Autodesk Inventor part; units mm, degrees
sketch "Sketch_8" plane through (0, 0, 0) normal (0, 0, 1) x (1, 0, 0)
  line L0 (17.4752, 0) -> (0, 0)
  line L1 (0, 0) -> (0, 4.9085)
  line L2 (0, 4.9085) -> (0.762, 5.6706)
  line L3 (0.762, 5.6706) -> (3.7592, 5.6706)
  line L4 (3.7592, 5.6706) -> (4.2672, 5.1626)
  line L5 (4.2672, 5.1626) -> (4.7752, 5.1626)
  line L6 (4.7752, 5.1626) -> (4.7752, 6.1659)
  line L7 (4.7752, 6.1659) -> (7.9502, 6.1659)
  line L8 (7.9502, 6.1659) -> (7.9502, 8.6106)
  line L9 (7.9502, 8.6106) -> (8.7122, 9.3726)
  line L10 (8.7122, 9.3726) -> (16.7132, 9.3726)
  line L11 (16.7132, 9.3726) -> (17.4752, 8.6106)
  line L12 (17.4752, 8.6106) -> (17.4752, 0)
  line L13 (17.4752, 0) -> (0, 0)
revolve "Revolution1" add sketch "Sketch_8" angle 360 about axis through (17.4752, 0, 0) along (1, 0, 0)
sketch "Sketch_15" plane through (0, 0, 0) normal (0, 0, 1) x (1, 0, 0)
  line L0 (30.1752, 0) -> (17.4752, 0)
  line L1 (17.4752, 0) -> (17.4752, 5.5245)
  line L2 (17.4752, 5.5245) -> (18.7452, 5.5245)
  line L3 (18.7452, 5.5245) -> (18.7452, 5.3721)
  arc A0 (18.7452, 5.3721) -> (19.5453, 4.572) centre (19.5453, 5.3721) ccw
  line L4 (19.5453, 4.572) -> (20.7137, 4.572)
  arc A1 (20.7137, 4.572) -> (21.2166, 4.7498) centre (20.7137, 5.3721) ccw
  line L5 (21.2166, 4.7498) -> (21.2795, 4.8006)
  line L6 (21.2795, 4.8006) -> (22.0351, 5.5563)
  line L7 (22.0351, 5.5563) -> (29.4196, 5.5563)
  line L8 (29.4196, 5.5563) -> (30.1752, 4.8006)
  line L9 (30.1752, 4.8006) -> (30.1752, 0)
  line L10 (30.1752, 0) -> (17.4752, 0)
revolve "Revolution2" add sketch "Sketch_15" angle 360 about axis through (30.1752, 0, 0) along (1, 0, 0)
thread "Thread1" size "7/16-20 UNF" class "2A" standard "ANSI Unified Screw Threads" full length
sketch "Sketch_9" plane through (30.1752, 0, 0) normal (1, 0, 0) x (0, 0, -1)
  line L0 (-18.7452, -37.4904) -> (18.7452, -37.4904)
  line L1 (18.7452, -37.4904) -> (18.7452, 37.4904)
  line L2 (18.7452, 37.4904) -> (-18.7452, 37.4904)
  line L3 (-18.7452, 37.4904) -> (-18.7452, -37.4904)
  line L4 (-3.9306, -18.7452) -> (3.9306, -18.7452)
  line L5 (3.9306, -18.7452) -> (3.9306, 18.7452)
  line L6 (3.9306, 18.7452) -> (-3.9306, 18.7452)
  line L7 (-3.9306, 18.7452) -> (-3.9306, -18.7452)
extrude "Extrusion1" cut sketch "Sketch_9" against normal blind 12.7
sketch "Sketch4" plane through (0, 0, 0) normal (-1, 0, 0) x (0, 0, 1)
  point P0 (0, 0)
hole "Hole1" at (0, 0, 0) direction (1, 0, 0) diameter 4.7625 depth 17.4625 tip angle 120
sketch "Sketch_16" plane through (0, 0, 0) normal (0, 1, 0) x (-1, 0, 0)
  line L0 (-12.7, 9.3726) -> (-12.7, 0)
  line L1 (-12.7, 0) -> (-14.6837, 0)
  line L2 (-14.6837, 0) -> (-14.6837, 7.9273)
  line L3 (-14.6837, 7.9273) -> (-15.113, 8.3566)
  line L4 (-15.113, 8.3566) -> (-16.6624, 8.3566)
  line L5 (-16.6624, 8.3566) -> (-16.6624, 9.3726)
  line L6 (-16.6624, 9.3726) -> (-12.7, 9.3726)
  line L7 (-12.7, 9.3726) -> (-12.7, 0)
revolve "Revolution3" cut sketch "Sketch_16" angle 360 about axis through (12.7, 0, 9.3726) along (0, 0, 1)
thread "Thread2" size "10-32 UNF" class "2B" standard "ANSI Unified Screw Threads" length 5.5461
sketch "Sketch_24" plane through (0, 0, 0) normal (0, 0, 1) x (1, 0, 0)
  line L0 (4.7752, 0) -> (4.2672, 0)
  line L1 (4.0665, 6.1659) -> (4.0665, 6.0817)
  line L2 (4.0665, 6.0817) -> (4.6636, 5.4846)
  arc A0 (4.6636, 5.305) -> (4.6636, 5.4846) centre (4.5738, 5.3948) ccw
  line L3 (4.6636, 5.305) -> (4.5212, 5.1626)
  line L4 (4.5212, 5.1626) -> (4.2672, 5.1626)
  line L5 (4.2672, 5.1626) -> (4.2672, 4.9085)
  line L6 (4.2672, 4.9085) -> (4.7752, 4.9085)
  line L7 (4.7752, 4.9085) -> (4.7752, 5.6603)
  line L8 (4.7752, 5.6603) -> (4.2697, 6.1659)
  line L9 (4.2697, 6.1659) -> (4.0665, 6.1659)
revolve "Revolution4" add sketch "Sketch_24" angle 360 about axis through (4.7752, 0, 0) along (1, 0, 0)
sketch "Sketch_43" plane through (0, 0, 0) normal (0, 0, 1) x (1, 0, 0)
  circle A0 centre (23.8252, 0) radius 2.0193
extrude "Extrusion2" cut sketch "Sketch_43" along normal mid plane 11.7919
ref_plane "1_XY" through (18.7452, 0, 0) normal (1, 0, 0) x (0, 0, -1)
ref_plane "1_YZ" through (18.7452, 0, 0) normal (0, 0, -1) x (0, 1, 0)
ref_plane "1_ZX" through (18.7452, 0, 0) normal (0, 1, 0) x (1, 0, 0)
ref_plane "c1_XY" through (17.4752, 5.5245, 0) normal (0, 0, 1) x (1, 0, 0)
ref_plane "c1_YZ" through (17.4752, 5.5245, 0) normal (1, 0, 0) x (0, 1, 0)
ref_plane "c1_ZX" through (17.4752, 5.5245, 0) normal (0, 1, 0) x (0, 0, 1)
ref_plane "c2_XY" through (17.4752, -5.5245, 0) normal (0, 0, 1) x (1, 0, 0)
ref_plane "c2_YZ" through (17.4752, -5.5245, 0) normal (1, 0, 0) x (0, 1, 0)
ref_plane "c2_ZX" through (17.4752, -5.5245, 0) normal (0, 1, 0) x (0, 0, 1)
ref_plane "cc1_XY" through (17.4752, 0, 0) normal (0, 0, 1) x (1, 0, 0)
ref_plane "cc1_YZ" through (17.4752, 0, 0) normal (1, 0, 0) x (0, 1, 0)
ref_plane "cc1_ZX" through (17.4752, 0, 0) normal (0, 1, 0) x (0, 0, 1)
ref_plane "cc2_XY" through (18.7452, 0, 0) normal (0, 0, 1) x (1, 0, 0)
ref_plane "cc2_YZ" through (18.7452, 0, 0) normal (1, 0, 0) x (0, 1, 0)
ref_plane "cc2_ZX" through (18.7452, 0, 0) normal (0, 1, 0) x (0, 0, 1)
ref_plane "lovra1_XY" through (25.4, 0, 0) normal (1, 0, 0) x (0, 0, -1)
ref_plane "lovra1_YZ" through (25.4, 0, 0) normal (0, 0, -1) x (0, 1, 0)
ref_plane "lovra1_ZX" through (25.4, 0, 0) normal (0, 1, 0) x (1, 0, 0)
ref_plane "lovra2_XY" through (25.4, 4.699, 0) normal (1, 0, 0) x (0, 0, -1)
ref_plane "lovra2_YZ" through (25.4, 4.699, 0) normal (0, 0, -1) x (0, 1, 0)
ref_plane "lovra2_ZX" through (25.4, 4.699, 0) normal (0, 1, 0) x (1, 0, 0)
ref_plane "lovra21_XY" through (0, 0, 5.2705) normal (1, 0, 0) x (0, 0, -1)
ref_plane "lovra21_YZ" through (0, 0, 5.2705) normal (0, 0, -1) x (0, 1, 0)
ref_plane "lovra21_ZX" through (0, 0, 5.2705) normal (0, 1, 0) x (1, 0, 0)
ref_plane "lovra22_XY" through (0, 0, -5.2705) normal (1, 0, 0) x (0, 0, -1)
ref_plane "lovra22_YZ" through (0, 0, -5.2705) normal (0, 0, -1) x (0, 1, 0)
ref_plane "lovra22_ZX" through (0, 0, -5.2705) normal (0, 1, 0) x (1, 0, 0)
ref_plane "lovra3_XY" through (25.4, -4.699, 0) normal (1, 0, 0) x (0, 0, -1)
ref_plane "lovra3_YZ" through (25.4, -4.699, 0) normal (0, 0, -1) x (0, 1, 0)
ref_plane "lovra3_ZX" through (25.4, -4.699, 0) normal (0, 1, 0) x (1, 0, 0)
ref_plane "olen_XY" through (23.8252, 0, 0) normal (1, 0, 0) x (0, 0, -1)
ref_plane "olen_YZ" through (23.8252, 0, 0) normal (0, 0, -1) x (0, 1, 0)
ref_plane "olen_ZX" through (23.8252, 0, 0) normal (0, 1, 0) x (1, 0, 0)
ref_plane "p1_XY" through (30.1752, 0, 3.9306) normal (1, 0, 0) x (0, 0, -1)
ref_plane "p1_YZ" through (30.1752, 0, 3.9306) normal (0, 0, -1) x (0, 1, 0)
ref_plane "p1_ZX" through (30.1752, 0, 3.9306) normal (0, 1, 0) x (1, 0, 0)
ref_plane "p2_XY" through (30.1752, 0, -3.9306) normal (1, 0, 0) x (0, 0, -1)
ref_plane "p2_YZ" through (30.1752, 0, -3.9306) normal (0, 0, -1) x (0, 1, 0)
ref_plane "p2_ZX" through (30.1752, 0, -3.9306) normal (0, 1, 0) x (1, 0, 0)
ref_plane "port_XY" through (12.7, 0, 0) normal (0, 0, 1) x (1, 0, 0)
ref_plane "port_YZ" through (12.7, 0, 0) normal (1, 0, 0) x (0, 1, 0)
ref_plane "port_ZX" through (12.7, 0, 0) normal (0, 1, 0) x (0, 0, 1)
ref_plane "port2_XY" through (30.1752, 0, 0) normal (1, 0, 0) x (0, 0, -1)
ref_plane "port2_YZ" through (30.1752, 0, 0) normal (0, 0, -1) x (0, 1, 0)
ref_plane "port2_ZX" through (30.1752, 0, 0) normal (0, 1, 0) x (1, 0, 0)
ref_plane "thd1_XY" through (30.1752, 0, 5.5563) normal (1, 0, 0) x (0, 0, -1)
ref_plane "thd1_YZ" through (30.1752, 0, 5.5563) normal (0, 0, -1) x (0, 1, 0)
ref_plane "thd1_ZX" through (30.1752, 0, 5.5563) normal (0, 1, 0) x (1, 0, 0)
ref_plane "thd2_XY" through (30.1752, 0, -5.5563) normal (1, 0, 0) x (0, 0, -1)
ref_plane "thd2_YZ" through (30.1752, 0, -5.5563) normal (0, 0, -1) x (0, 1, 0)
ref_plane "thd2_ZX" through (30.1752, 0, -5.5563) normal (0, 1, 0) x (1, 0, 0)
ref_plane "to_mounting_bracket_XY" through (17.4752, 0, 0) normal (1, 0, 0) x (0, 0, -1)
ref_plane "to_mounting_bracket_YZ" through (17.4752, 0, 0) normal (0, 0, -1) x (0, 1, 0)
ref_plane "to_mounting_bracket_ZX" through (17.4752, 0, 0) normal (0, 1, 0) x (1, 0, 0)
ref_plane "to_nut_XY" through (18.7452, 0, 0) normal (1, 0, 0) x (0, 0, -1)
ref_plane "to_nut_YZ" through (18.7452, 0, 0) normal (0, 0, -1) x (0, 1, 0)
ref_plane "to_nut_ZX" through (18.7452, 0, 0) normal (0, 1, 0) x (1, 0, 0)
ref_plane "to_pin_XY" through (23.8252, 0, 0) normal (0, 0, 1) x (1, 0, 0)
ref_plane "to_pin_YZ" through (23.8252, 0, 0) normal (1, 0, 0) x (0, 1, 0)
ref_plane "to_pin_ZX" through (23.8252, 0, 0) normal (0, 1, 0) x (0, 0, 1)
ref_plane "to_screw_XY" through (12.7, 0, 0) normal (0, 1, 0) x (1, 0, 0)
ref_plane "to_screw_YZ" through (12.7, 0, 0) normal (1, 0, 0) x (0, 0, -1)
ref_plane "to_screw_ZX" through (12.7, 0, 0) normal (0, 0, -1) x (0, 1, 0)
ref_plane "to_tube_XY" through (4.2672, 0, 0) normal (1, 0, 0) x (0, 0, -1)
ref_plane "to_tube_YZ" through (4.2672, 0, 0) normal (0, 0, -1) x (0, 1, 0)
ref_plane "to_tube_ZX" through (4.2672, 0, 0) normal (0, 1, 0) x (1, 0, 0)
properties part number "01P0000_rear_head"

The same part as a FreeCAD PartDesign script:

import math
import FreeCAD as App
import Part
import Sketcher
from FreeCAD import Vector
Q = App.Units.Quantity


def add_polygon(sketch, points):
    """Adds a closed chain of lines whose ends are joined by coincident constraints."""
    first, n = sketch.GeometryCount, len(points)
    for a, b in zip(points, points[1:] + points[:1]):
        sketch.addGeometry(Part.LineSegment(App.Vector(*a, 0), App.Vector(*b, 0)), False)
    for i in range(n):
        sketch.addConstraint(Sketcher.Constraint("Coincident", first + i, 2, first + (i + 1) % n, 1))

doc = App.newDocument("Part")
body = doc.addObject("PartDesign::Body", "Body")

# Sketch on XY plane
sketch1 = body.newObject("Sketcher::SketchObject", "Sketch")
sketch1.AttachmentSupport = (doc.getObject("XY_Plane"), [""])
sketch1.MapMode = "FlatFace"
add_polygon(sketch1, [(0, 0), (17.5, 0), (17.5, 8.6), (16.7, 9.4), (8.7, 9.4), (8, 8.6), (8, 6.2), (4.8, 6.2), (4.8, 5.2), (4.3, 5.2), (3.8, 5.7), (0.8, 5.7), (0, 4.9)])  # lines 0-12
sketch1.addConstraint(Sketcher.Constraint("Horizontal", 0))
sketch1.addConstraint(Sketcher.Constraint("Vertical", 1))
sketch1.addConstraint(Sketcher.Constraint("Horizontal", 3))
sketch1.addConstraint(Sketcher.Constraint("Vertical", 5))
sketch1.addConstraint(Sketcher.Constraint("Horizontal", 6))
sketch1.addConstraint(Sketcher.Constraint("Vertical", 7))
sketch1.addConstraint(Sketcher.Constraint("Horizontal", 8))
sketch1.addConstraint(Sketcher.Constraint("Horizontal", 10))
sketch1.addConstraint(Sketcher.Constraint("Vertical", 12))
sketch1.addConstraint(Sketcher.Constraint("Coincident", 12, 2, -1, 1))
sketch1.addConstraint(Sketcher.Constraint("Perpendicular", 2, 4))
sketch1.addConstraint(Sketcher.Constraint("Perpendicular", 4, 9))
sketch1.addConstraint(Sketcher.Constraint("Perpendicular", 9, 11))
sketch1.addConstraint(Sketcher.Constraint("Horizontal", 1, 2, 4, 2))
sketch1.addConstraint(Sketcher.Constraint("Equal", 2, 4))
sketch1.addConstraint(Sketcher.Constraint("Equal", 4, 11))
sketch1.addConstraint(Sketcher.Constraint("DistanceX", 8, 2, 8, 1, Q("0.02 in")))
sketch1.addConstraint(Sketcher.Constraint("DistanceX", 6, 2, 1, 2, Q("0.5 in")))
sketch1.addConstraint(Sketcher.Constraint("DistanceX", 0, 1, 0, 2, Q("0.688 in")))
sketch1.addConstraint(Sketcher.Constraint("DistanceX", 3, 2, 3, 1, Q("0.315 in")))
sketch1.addConstraint(Sketcher.Constraint("DistanceX", 6, 2, 6, 1, Q("0.125 in")))
sketch1.addConstraint(Sketcher.Constraint("DistanceX", 10, 2, 10, 1, Q("0.118 in")))
sketch1.addConstraint(Sketcher.Constraint("DistanceY", 1, 1, 1, 2, Q("0.339 in")))
sketch1.addConstraint(Sketcher.Constraint("DistanceY", 7, 2, 7, 1, Q("0.0395 in")))
sketch1.addConstraint(Sketcher.Constraint("DistanceY", 5, 2, 5, 1, Q("2.4447 mm")))
revolution = body.newObject("PartDesign::Revolution", "Revolution")
revolution.Profile = sketch1
revolution.ReferenceAxis = (sketch1, ["H_Axis"])
revolution.Angle = 360

# Sketch on XY plane
sketch2 = body.newObject("Sketcher::SketchObject", "Sketch001")
sketch2.AttachmentSupport = (doc.getObject("XY_Plane"), [""])
sketch2.MapMode = "FlatFace"
sketch2.addGeometry(Part.LineSegment(Vector(17.48, 0, 0), Vector(30.18, 0, 0)), False)
sketch2.addGeometry(Part.LineSegment(Vector(30.18, 0, 0), Vector(30.18, 4.8, 0)), False)
sketch2.addGeometry(Part.LineSegment(Vector(30.18, 4.8, 0), Vector(29.42, 5.56, 0)), False)
sketch2.addGeometry(Part.LineSegment(Vector(29.42, 5.56, 0), Vector(22.04, 5.56, 0)), False)
sketch2.addGeometry(Part.LineSegment(Vector(22.04, 5.56, 0), Vector(21.28, 4.8, 0)), False)
sketch2.addGeometry(Part.LineSegment(Vector(21.28, 4.8, 0), Vector(21.22, 4.75, 0)), False)
sketch2.addGeometry(Part.ArcOfCircle(Part.Circle(Vector(20.71, 5.37, 0), Vector(0, 0, 1), 0.8), math.radians(-90), math.radians(-51)), False)
sketch2.addGeometry(Part.LineSegment(Vector(20.71, 4.57, 0), Vector(19.55, 4.57, 0)), False)
sketch2.addGeometry(Part.ArcOfCircle(Part.Circle(Vector(19.55, 5.37, 0), Vector(0, 0, 1), 0.8), math.radians(180), math.radians(270)), False)
sketch2.addGeometry(Part.LineSegment(Vector(18.75, 5.37, 0), Vector(18.75, 5.52, 0)), False)
sketch2.addGeometry(Part.LineSegment(Vector(18.75, 5.52, 0), Vector(17.48, 5.52, 0)), False)
sketch2.addGeometry(Part.LineSegment(Vector(17.48, 5.52, 0), Vector(17.48, 0, 0)), False)
sketch2.addConstraint(Sketcher.Constraint("Coincident", 0, 2, 1, 1))
sketch2.addConstraint(Sketcher.Constraint("Coincident", 1, 2, 2, 1))
sketch2.addConstraint(Sketcher.Constraint("Coincident", 2, 2, 3, 1))
sketch2.addConstraint(Sketcher.Constraint("Coincident", 3, 2, 4, 1))
sketch2.addConstraint(Sketcher.Constraint("Coincident", 4, 2, 5, 1))
sketch2.addConstraint(Sketcher.Constraint("Tangent", 5, 2, 6, 2))
sketch2.addConstraint(Sketcher.Constraint("Tangent", 6, 1, 7, 1))
sketch2.addConstraint(Sketcher.Constraint("Tangent", 7, 2, 8, 2))
sketch2.addConstraint(Sketcher.Constraint("Tangent", 8, 1, 9, 1))
sketch2.addConstraint(Sketcher.Constraint("Coincident", 9, 2, 10, 1))
sketch2.addConstraint(Sketcher.Constraint("Coincident", 10, 2, 11, 1))
sketch2.addConstraint(Sketcher.Constraint("Coincident", 11, 2, 0, 1))
sketch2.addConstraint(Sketcher.Constraint("Horizontal", 0))
sketch2.addConstraint(Sketcher.Constraint("Vertical", 1))
sketch2.addConstraint(Sketcher.Constraint("Horizontal", 3))
sketch2.addConstraint(Sketcher.Constraint("Horizontal", 7))
sketch2.addConstraint(Sketcher.Constraint("Vertical", 9))
sketch2.addConstraint(Sketcher.Constraint("Horizontal", 10))
sketch2.addConstraint(Sketcher.Constraint("Vertical", 11))
sketch2.addConstraint(Sketcher.Constraint("Equal", 6, 8))
sketch2.addConstraint(Sketcher.Constraint("PointOnObject", 0, 2, -1))
sketch2.addConstraint(Sketcher.Constraint("Perpendicular", 2, 4))
sketch2.addConstraint(Sketcher.Constraint("Horizontal", 1, 2, 4, 2))
sketch2.addConstraint(Sketcher.Constraint("Equal", 2, 4))
sketch2.addConstraint(Sketcher.Constraint("DistanceX", 0, 1, 0, 2, Q("0.5 in")))
sketch2.addConstraint(Sketcher.Constraint("DistanceX", 10, 2, 10, 1, Q("0.05 in")))
sketch2.addConstraint(Sketcher.Constraint("Radius", 6, Q("0.0315 in")))
sketch2.addConstraint(Sketcher.Constraint("DistanceX", 7, 2, 7, 1, Q("0.046 in")))
sketch2.addConstraint(Sketcher.Constraint("DistanceY", 1, 1, 1, 2, Q("0.189 in")))
sketch2.addConstraint(Sketcher.Constraint("DistanceY", 9, 1, 9, 2, Q("0.006 in")))
sketch2.addConstraint(Sketcher.Constraint("DistanceY", -1, 1, 6, 1, Q("0.18 in")))
sketch2.addConstraint(Sketcher.Constraint("DistanceX", -1, 1, 0, 2, Q("1.188 in")))
sketch2.addConstraint(Sketcher.Constraint("DistanceY", -1, 1, 2, 2, Q("0.218752 in")))
sketch2.addConstraint(Sketcher.Constraint("DistanceY", -1, 1, 5, 2, Q("0.187 in")))
revolution2 = body.newObject("PartDesign::Revolution", "Revolution001")
revolution2.Profile = sketch2
revolution2.ReferenceAxis = (sketch2, ["H_Axis"])
revolution2.Angle = 360

# Sketch on YZ plane
sketch3 = body.newObject("Sketcher::SketchObject", "Sketch002")
sketch3.AttachmentSupport = (doc.getObject("YZ_Plane"), [""])
sketch3.MapMode = "FlatFace"
sketch3.AttachmentOffset = App.Placement(Vector(0, 0, 1.188 * 25.4), App.Rotation())
add_polygon(sketch3, [(37, 19), (-37, 19), (-37, -19), (37, -19)])  # lines 0-3
add_polygon(sketch3, [(-19, -4), (-19, 4), (19, 4), (19, -4)])  # lines 4-7
sketch3.addConstraint(Sketcher.Constraint("Horizontal", 0))
sketch3.addConstraint(Sketcher.Constraint("Vertical", 1))
sketch3.addConstraint(Sketcher.Constraint("Horizontal", 2))
sketch3.addConstraint(Sketcher.Constraint("Vertical", 3))
sketch3.addConstraint(Sketcher.Constraint("Vertical", 4))
sketch3.addConstraint(Sketcher.Constraint("Horizontal", 5))
sketch3.addConstraint(Sketcher.Constraint("Vertical", 6))
sketch3.addConstraint(Sketcher.Constraint("Horizontal", 7))
sketch3.addConstraint(Sketcher.Constraint("Symmetric", 0, 2, 2, 2, -1, 1))
sketch3.addConstraint(Sketcher.Constraint("Symmetric", 4, 2, 6, 2, -1, 1))
sketch3.addConstraint(Sketcher.Constraint("Equal", 7, 1))
sketch3.addConstraint(Sketcher.Constraint("DistanceX", 0, 2, 0, 1, Q("2.952 in")))
sketch3.addConstraint(Sketcher.Constraint("DistanceX", 5, 1, 5, 2, Q("1.476 in")))
sketch3.addConstraint(Sketcher.Constraint("DistanceY", 4, 1, 4, 2, Q("0.3095 in")))
pocket1 = body.newObject("PartDesign::Pocket", "Pocket")
pocket1.Profile = sketch3
pocket1.Length = Q("0.5 in")

# Sketch on YZ plane
sketch4 = body.newObject("Sketcher::SketchObject", "Sketch003")
sketch4.AttachmentSupport = (doc.getObject("YZ_Plane"), [""])
sketch4.MapMode = "FlatFace"
sketch4.addGeometry(Part.Circle(Vector(0, 0, 0), Vector(0, 0, 1), 2.4), False)
sketch4.addConstraint(Sketcher.Constraint("Coincident", 0, 3, -1, 1))
sketch4.addConstraint(Sketcher.Constraint("Diameter", 0, Q("0.1875 in")))
doc.recompute()
hole = body.newObject("PartDesign::Hole", "Hole")
hole.Profile = sketch4
hole.ThreadType = "None"
hole.Diameter = Q("0.1875 in")
hole.DepthType = "Dimension"
hole.Depth = Q("0.6875 in")
hole.DrillPoint = "Angled"
hole.DrillPointAngle = 120
hole.Reversed = True

# Sketch on XZ plane
sketch5 = body.newObject("Sketcher::SketchObject", "Sketch004")
sketch5.AttachmentSupport = (doc.getObject("XZ_Plane"), [""])
sketch5.MapMode = "FlatFace"
add_polygon(sketch5, [(12.7, 0), (12.7, 9.4), (16.7, 9.4), (16.7, 8.4), (15.1, 8.4), (14.7, 7.9), (14.7, 0)])  # lines 0-6
sketch5.addGeometry(Part.LineSegment(Vector(12.7, 0, 0), Vector(12.7, 9.4, 0)), True)  # axis
sketch5.addConstraint(Sketcher.Constraint("Vertical", 0))
sketch5.addConstraint(Sketcher.Constraint("Horizontal", 1))
sketch5.addConstraint(Sketcher.Constraint("Vertical", 2))
sketch5.addConstraint(Sketcher.Constraint("Horizontal", 3))
sketch5.addConstraint(Sketcher.Constraint("Vertical", 5))
sketch5.addConstraint(Sketcher.Constraint("Horizontal", 6))
sketch5.addConstraint(Sketcher.Constraint("Vertical", 7))
sketch5.addConstraint(Sketcher.Constraint("Coincident", 7, 1, 6, 2))
sketch5.addConstraint(Sketcher.Constraint("PointOnObject", 5, 2, -1))
sketch5.addConstraint(Sketcher.Constraint("Horizontal", 1, 2, 7, 2))
sketch5.addConstraint(Sketcher.Constraint("Angle", 4, Q("-135 deg")))
sketch5.addConstraint(Sketcher.Constraint("DistanceY", 2, 2, 2, 1, Q("0.04 in")))
sketch5.addConstraint(Sketcher.Constraint("DistanceX", -1, 1, 0, 2, Q("0.5 in")))
sketch5.addConstraint(Sketcher.Constraint("DistanceX", 1, 1, 1, 2, Q("0.156 in")))
sketch5.addConstraint(Sketcher.Constraint("DistanceX", 3, 2, 3, 1, Q("0.061 in")))
sketch5.addConstraint(Sketcher.Constraint("DistanceY", 0, 1, 0, 2, Q("0.369 in")))
sketch5.addConstraint(Sketcher.Constraint("DistanceX", 6, 2, 6, 1, Q("0.0781 in")))
groove = body.newObject("PartDesign::Groove", "Groove")
groove.Profile = sketch5
groove.ReferenceAxis = (sketch5, ["Axis0"])
groove.Angle = 360

# Sketch on XY plane
sketch6 = body.newObject("Sketcher::SketchObject", "Sketch005")
sketch6.AttachmentSupport = (doc.getObject("XY_Plane"), [""])
sketch6.MapMode = "FlatFace"
sketch6.addGeometry(Part.LineSegment(Vector(4.27, 6.17, 0), Vector(4.07, 6.17, 0)), False)
sketch6.addGeometry(Part.LineSegment(Vector(4.07, 6.17, 0), Vector(4.07, 6.08, 0)), False)
sketch6.addGeometry(Part.LineSegment(Vector(4.07, 6.08, 0), Vector(4.66, 5.48, 0)), False)
sketch6.addGeometry(Part.ArcOfCircle(Part.Circle(Vector(4.57, 5.39, 0), Vector(0, 0, 1), 0.13), math.radians(-45), math.radians(45)), False)
sketch6.addGeometry(Part.LineSegment(Vector(4.66, 5.3, 0), Vector(4.52, 5.16, 0)), False)
sketch6.addGeometry(Part.LineSegment(Vector(4.52, 5.16, 0), Vector(4.27, 5.16, 0)), False)
sketch6.addGeometry(Part.LineSegment(Vector(4.27, 5.16, 0), Vector(4.27, 4.91, 0)), False)
sketch6.addGeometry(Part.LineSegment(Vector(4.27, 4.91, 0), Vector(4.78, 4.91, 0)), False)
sketch6.addGeometry(Part.LineSegment(Vector(4.78, 4.91, 0), Vector(4.78, 5.66, 0)), False)
sketch6.addGeometry(Part.LineSegment(Vector(4.78, 5.66, 0), Vector(4.27, 6.17, 0)), False)
sketch6.addConstraint(Sketcher.Constraint("Coincident", 0, 2, 1, 1))
sketch6.addConstraint(Sketcher.Constraint("Coincident", 1, 2, 2, 1))
sketch6.addConstraint(Sketcher.Constraint("Tangent", 2, 2, 3, 2))
sketch6.addConstraint(Sketcher.Constraint("Tangent", 3, 1, 4, 1))
sketch6.addConstraint(Sketcher.Constraint("Coincident", 4, 2, 5, 1))
sketch6.addConstraint(Sketcher.Constraint("Coincident", 5, 2, 6, 1))
sketch6.addConstraint(Sketcher.Constraint("Coincident", 6, 2, 7, 1))
sketch6.addConstraint(Sketcher.Constraint("Coincident", 7, 2, 8, 1))
sketch6.addConstraint(Sketcher.Constraint("Coincident", 8, 2, 9, 1))
sketch6.addConstraint(Sketcher.Constraint("Coincident", 9, 2, 0, 1))
sketch6.addConstraint(Sketcher.Constraint("Horizontal", 0))
sketch6.addConstraint(Sketcher.Constraint("Vertical", 1))
sketch6.addConstraint(Sketcher.Constraint("Horizontal", 5))
sketch6.addConstraint(Sketcher.Constraint("Vertical", 6))
sketch6.addConstraint(Sketcher.Constraint("Horizontal", 7))
sketch6.addConstraint(Sketcher.Constraint("Vertical", 8))
sketch6.addConstraint(Sketcher.Constraint("Perpendicular", 2, 4))
sketch6.addConstraint(Sketcher.Constraint("Perpendicular", 4, 9))
sketch6.addConstraint(Sketcher.Constraint("Vertical", 2, 2, 3, 1))
sketch6.addConstraint(Sketcher.Constraint("Equal", 5, 6))
sketch6.addConstraint(Sketcher.Constraint("Radius", 3, Q("0.005 in")))
sketch6.addConstraint(Sketcher.Constraint("DistanceX", 5, 2, 5, 1, Q("0.01 in")))
sketch6.addConstraint(Sketcher.Constraint("DistanceX", 7, 1, 7, 2, Q("0.02 in")))
sketch6.addConstraint(Sketcher.Constraint("DistanceX", 0, 2, 0, 1, Q("0.008 in")))
sketch6.addConstraint(Sketcher.Constraint("DistanceY", 8, 1, 8, 2, Q("0.0296 in")))
sketch6.addConstraint(Sketcher.Constraint("DistanceX", -1, 1, 4, 2, Q("0.178 in")))
sketch6.addConstraint(Sketcher.Constraint("DistanceY", 3, 1, 8, 2, Q("0.014 in")))
sketch6.addConstraint(Sketcher.Constraint("DistanceY", -1, 1, 3, 3, Q("0.2124 in")))
sketch6.addConstraint(Sketcher.Constraint("DistanceX", -1, 1, 0, 2, Q("0.1601 in")))
revolution3 = body.newObject("PartDesign::Revolution", "Revolution002")
revolution3.Profile = sketch6
revolution3.ReferenceAxis = (sketch6, ["H_Axis"])
revolution3.Angle = 360

# Sketch on XY plane
sketch7 = body.newObject("Sketcher::SketchObject", "Sketch006")
sketch7.AttachmentSupport = (doc.getObject("XY_Plane"), [""])
sketch7.MapMode = "FlatFace"
sketch7.addGeometry(Part.Circle(Vector(23.8, 0, 0), Vector(0, 0, 1), 2), False)
sketch7.addConstraint(Sketcher.Constraint("PointOnObject", 0, 3, -1))
sketch7.addConstraint(Sketcher.Constraint("Diameter", 0, Q("0.159 in")))
sketch7.addConstraint(Sketcher.Constraint("DistanceX", -1, 1, 0, 3, Q("0.938 in")))
pocket2 = body.newObject("PartDesign::Pocket", "Pocket001")
pocket2.Profile = sketch7
pocket2.Length = 11.7919
pocket2.Midplane = True

doc.recompute()
